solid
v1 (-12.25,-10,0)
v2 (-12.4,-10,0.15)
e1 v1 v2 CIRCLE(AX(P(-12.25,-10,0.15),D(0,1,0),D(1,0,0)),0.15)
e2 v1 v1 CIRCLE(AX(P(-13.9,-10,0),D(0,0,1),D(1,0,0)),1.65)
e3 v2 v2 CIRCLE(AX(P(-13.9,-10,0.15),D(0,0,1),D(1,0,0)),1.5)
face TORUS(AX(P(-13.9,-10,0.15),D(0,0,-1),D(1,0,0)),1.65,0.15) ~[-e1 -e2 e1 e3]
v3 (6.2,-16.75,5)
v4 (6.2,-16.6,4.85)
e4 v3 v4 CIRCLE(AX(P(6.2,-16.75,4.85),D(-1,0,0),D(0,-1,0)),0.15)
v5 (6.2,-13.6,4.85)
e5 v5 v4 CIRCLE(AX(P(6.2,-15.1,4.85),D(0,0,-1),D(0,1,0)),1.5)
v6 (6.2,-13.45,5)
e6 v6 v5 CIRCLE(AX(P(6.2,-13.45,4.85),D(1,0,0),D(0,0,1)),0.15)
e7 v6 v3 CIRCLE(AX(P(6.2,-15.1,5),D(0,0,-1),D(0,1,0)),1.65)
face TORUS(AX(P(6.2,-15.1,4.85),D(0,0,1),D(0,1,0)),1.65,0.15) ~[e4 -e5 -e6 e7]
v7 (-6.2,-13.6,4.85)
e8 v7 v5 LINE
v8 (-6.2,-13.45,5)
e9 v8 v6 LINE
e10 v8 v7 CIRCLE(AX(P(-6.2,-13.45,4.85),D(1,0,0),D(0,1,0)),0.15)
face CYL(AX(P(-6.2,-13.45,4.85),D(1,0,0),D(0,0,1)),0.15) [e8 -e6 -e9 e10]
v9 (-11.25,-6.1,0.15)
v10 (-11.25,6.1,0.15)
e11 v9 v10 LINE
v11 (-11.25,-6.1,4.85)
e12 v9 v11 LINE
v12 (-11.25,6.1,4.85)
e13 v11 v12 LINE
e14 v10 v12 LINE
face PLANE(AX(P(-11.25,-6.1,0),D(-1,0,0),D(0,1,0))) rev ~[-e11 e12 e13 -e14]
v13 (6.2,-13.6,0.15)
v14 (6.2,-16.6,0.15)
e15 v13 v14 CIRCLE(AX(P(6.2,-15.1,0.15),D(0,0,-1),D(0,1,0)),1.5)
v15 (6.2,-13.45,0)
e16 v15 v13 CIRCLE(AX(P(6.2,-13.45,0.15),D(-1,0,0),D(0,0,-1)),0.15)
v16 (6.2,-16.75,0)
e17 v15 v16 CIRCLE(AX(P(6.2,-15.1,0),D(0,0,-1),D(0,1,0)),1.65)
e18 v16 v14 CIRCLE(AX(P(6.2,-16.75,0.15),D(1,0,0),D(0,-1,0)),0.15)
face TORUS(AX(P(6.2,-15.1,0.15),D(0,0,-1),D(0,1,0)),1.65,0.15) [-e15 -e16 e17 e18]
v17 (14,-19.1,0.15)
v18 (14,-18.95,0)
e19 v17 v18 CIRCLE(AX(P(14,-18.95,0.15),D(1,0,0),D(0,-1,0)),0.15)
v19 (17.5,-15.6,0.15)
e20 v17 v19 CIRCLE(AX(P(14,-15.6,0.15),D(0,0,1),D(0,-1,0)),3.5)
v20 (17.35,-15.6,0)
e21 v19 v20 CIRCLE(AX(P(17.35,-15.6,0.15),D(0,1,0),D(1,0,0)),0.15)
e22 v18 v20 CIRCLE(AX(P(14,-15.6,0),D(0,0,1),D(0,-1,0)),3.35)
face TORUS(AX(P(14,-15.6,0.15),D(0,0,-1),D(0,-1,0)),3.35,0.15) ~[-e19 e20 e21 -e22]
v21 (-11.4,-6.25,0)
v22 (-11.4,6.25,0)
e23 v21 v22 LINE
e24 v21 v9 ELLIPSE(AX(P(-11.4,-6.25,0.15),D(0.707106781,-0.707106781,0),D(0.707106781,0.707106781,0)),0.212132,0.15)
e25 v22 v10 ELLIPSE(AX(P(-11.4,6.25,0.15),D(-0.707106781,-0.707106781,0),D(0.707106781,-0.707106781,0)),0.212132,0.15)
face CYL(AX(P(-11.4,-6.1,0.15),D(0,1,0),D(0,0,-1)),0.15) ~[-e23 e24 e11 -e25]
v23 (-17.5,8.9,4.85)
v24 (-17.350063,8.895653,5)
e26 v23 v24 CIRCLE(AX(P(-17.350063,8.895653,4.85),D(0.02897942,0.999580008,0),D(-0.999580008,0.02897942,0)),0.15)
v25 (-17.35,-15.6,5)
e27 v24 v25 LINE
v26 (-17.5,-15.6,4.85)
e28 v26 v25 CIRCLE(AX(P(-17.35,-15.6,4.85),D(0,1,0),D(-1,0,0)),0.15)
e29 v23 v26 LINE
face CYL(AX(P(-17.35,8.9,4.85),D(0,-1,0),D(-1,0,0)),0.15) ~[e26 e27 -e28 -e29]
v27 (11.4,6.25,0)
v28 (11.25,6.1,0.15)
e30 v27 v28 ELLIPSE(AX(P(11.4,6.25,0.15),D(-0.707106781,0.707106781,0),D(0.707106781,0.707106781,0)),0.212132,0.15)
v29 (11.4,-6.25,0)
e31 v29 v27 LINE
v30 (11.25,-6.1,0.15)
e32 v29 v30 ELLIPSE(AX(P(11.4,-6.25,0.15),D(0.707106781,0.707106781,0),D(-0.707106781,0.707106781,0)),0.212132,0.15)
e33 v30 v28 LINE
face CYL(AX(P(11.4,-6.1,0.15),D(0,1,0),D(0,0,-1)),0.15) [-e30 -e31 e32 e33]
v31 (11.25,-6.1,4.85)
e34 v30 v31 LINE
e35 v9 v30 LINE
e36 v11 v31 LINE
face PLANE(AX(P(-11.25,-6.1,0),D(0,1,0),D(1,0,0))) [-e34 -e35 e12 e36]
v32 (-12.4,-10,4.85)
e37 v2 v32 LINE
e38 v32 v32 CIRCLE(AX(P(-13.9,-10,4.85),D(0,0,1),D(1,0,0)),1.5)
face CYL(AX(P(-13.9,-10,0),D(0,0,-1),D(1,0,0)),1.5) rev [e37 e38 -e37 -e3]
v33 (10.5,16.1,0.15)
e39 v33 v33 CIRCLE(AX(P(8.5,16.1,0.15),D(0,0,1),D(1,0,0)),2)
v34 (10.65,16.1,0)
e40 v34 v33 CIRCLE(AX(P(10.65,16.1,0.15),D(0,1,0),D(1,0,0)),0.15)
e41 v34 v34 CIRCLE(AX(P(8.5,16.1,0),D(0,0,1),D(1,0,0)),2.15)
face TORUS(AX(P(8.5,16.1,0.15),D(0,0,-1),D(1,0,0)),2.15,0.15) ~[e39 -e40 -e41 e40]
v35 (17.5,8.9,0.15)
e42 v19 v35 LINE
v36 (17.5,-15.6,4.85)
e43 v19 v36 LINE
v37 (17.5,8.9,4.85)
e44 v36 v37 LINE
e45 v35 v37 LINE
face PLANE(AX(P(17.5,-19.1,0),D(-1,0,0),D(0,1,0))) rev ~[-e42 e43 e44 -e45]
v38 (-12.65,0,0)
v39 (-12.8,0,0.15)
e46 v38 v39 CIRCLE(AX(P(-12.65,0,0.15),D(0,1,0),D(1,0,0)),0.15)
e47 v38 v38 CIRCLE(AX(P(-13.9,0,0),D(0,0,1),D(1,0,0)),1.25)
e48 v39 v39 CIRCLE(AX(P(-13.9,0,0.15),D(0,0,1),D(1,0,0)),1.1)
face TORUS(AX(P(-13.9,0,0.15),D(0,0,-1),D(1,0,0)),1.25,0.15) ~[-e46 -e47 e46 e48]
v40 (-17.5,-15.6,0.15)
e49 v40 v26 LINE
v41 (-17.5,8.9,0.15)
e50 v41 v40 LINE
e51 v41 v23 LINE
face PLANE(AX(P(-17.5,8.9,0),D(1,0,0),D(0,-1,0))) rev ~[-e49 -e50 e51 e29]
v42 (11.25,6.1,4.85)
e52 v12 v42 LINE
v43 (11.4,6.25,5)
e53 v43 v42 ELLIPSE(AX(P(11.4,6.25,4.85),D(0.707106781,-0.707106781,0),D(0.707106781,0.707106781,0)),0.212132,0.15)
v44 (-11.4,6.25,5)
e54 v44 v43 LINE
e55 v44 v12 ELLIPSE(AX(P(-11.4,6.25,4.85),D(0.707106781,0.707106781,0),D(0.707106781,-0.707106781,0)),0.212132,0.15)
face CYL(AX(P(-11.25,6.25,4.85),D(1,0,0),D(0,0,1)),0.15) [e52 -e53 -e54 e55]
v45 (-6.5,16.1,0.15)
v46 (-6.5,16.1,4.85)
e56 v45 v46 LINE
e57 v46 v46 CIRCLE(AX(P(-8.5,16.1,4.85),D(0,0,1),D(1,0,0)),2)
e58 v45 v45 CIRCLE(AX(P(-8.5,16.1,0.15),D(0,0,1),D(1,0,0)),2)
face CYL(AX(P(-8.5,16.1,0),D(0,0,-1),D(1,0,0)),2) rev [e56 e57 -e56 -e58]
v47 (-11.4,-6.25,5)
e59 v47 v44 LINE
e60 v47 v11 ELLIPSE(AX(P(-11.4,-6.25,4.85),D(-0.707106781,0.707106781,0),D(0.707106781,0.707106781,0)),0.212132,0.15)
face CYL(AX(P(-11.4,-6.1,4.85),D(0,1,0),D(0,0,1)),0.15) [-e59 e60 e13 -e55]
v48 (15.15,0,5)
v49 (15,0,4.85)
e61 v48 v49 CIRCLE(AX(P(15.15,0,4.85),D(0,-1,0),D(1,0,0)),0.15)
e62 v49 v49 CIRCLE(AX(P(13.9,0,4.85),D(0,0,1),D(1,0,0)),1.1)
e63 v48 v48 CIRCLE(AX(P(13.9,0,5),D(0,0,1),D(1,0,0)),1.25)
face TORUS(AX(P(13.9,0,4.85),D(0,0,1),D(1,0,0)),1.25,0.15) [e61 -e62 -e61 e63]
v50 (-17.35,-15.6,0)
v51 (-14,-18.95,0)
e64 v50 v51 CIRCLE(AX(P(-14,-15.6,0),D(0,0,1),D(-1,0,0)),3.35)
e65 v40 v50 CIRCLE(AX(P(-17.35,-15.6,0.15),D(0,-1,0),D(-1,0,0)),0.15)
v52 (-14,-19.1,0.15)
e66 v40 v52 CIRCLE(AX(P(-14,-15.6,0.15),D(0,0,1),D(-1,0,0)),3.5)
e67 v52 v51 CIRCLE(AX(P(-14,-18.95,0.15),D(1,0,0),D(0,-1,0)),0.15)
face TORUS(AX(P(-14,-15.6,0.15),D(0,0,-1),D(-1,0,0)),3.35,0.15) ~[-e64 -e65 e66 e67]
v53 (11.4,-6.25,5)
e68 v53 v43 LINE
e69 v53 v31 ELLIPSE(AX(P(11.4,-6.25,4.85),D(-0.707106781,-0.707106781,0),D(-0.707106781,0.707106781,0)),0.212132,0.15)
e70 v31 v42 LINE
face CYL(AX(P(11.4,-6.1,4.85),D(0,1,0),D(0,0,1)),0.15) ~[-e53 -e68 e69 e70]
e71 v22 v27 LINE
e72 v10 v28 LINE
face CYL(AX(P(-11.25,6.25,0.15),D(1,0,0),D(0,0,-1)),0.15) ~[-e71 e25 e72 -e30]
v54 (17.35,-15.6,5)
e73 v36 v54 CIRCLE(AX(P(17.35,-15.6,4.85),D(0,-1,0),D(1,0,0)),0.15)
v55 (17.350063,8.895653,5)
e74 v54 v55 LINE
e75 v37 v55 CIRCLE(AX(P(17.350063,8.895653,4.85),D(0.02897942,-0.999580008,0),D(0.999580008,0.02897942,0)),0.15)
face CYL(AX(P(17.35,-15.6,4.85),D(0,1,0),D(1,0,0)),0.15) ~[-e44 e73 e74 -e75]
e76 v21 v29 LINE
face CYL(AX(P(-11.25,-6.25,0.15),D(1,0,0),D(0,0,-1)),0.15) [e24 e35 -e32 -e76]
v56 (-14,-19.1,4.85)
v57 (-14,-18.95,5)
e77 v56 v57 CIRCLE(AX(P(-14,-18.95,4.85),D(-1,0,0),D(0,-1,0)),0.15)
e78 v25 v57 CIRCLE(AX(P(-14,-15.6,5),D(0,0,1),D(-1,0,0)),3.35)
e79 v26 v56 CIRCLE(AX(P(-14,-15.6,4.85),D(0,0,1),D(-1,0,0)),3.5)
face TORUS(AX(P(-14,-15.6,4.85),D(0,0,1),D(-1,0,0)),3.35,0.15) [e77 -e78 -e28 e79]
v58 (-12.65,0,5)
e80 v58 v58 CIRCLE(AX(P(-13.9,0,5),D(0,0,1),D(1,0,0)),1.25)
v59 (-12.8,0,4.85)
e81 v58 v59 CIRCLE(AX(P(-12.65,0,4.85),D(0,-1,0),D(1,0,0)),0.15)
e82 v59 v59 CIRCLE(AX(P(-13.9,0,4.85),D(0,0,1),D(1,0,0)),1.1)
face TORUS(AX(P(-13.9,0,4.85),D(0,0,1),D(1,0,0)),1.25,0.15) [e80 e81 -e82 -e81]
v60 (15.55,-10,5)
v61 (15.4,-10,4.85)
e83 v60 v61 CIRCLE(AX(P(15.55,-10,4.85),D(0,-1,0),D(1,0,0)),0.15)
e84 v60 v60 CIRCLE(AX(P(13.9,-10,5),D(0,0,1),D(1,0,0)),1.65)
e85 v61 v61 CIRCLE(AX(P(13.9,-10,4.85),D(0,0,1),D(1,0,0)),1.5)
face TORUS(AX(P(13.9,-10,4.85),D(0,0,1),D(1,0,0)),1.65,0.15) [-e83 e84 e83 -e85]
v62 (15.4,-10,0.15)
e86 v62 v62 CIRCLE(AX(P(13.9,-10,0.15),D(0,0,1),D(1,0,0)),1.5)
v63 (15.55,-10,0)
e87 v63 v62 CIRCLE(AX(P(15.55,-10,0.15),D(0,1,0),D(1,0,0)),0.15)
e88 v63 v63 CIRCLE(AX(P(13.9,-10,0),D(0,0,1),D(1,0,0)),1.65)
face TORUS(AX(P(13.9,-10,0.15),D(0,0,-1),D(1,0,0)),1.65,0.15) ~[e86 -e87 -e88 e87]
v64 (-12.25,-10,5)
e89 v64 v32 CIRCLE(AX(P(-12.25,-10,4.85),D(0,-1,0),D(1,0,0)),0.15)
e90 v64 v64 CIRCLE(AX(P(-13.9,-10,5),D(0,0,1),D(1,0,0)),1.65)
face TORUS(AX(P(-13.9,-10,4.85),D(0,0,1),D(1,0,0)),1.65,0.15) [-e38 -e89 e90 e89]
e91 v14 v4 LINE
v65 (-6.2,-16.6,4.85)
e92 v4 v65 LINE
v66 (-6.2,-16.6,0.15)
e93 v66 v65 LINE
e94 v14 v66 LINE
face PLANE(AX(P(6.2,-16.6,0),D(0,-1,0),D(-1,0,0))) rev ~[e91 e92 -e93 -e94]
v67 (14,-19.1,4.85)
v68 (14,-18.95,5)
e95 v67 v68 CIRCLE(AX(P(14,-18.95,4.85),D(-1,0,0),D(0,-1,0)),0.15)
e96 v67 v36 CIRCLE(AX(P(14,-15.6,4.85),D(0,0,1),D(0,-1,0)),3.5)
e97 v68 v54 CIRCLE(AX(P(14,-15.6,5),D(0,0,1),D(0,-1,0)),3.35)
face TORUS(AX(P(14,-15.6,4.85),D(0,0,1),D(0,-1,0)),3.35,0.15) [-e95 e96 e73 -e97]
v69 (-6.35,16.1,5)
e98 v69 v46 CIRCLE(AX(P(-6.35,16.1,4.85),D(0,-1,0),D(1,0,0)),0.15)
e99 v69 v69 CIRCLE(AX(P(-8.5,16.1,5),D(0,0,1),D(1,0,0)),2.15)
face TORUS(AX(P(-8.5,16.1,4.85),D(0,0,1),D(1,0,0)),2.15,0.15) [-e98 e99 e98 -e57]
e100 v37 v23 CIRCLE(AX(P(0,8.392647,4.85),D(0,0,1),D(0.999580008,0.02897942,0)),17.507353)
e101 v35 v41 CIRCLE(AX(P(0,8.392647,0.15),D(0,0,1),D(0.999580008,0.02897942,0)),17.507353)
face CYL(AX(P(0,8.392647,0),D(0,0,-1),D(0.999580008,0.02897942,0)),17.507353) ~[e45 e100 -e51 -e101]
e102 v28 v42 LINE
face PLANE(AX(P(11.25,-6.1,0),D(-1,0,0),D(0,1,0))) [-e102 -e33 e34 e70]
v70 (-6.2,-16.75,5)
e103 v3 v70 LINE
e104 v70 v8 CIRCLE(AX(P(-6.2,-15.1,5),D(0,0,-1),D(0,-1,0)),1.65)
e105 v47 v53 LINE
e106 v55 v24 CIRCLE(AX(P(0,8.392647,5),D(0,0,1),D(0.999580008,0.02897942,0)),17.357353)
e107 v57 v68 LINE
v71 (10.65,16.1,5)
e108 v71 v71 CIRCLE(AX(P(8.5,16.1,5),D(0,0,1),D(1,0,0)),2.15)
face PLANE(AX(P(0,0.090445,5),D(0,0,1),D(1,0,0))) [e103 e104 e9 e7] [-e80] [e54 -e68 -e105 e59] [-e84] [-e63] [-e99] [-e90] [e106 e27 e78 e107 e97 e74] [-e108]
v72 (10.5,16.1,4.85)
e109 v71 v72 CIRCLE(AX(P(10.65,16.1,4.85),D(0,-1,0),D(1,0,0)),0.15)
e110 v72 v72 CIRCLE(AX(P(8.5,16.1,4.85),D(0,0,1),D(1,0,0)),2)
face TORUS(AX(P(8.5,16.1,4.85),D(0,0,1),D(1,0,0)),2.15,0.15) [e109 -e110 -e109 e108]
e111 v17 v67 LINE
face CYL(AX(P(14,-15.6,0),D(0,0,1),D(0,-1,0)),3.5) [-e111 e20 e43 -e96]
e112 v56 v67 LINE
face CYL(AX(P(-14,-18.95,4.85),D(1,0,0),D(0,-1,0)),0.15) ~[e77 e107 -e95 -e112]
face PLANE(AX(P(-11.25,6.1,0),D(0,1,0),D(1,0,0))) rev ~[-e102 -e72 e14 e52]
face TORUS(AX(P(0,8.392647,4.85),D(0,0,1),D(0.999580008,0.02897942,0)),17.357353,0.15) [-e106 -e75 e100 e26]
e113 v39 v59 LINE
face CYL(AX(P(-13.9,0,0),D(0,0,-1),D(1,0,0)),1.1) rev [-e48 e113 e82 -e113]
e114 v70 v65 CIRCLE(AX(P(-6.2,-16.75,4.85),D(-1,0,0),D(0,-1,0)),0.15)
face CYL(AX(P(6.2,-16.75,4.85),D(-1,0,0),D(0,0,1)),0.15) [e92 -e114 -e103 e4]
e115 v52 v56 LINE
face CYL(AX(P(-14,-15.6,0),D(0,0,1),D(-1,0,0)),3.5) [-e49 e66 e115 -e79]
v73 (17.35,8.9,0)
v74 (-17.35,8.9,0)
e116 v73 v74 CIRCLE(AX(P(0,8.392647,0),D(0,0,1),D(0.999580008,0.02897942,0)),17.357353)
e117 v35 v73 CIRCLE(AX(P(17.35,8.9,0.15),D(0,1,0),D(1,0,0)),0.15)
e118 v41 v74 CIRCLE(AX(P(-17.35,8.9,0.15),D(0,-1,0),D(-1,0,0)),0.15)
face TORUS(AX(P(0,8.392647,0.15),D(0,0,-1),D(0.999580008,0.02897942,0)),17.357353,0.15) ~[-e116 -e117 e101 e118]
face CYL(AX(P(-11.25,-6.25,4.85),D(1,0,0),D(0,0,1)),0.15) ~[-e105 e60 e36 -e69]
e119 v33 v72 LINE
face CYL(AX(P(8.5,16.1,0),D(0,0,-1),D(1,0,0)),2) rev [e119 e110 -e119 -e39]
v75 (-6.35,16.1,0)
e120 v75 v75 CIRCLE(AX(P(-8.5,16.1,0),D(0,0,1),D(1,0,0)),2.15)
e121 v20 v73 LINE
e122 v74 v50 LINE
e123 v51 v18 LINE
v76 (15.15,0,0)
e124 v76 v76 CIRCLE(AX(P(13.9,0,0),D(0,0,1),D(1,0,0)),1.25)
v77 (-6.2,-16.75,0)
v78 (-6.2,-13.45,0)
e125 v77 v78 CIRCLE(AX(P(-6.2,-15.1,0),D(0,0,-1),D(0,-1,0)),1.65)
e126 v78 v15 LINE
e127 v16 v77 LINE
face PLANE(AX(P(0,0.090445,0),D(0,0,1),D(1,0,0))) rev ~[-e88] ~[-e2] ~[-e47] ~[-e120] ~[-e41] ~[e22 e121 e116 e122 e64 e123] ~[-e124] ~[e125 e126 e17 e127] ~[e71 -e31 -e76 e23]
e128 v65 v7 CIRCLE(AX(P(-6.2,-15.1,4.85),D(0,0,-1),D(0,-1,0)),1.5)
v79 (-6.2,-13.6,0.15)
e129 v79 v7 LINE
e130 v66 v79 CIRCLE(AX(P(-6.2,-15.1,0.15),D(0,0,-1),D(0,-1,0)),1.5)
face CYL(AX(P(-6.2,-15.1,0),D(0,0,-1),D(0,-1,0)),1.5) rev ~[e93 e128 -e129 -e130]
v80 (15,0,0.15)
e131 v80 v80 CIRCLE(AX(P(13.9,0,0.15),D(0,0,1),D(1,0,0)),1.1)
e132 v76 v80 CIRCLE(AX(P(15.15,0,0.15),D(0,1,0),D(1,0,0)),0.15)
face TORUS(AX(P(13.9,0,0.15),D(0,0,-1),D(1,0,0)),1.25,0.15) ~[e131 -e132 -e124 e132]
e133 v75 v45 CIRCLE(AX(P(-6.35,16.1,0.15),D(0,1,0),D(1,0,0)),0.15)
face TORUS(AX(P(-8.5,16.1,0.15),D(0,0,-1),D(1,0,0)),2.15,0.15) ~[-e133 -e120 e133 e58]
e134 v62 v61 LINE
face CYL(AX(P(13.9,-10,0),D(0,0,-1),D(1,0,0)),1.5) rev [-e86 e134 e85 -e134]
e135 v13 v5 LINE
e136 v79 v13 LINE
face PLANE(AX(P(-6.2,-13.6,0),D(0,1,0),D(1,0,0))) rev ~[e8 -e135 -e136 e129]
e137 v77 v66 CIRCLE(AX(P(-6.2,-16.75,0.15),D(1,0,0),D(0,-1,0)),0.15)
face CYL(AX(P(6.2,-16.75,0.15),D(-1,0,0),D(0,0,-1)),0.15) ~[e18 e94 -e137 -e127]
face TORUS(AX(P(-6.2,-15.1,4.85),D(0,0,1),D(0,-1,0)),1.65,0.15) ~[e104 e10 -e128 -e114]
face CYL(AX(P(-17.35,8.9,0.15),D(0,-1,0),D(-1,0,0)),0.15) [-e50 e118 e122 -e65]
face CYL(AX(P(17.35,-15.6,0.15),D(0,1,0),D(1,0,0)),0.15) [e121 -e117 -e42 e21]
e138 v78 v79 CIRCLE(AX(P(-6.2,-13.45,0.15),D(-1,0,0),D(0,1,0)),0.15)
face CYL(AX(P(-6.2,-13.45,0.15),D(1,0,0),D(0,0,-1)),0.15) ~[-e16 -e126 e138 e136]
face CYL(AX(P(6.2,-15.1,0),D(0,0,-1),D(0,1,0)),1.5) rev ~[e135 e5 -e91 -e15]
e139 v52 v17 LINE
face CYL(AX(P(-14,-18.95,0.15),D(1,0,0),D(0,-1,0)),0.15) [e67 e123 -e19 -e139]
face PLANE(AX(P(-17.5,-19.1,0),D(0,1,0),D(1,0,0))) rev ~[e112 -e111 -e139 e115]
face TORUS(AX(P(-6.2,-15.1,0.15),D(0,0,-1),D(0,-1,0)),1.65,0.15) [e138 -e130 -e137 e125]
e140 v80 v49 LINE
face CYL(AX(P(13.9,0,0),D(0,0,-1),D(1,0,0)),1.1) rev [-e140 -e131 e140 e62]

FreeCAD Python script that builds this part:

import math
import FreeCAD as App
import Part
import Sketcher
Q = App.Units.Quantity


def edges_at(feature, points):
    """Names of the edges that pass closest to the given points."""
    edges = feature.Shape.Edges
    near = lambda p: min(range(len(edges)), key=lambda i: edges[i].distToShape(Part.Vertex(*p))[0])
    return sorted({f"Edge{near(p) + 1}" for p in points})


def add_polygon(sketch, points):
    """Adds a closed chain of lines whose ends are joined by coincident constraints."""
    first, n = sketch.GeometryCount, len(points)
    for a, b in zip(points, points[1:] + points[:1]):
        sketch.addGeometry(Part.LineSegment(App.Vector(*a, 0), App.Vector(*b, 0)), False)
    for i in range(n):
        sketch.addConstraint(Sketcher.Constraint("Coincident", first + i, 2, first + (i + 1) % n, 1))

doc = App.newDocument("Part")
body = doc.addObject("PartDesign::Body", "Body")

# Sketch on XY plane
sketch1 = doc.addObject("Sketcher::SketchObject", "Sketch")
body.addObject(sketch1)
sketch1.AttachmentSupport = (doc.XY_Plane, [""])
sketch1.MapMode = "FlatFace"
sketch1.addGeometry(Part.LineSegment(App.Vector(-17.5, 8.9, 0), App.Vector(-17.5, -19.1, 0)), False)  # 0
sketch1.addGeometry(Part.LineSegment(App.Vector(-17.5, -19.1, 0), App.Vector(17.5, -19.1, 0)), False)  # 1
sketch1.addGeometry(Part.LineSegment(App.Vector(17.5, -19.1, 0), App.Vector(17.5, 8.9, 0)), False)  # 2
sketch1.addGeometry(Part.ArcOfCircle(Part.Circle(App.Vector(0, 8.4, 0), App.Vector(0, 0, 1), 17.5), math.radians(2), math.radians(178)), False)  # 3
sketch1.addGeometry(Part.Circle(App.Vector(-13.9, -10, 0), App.Vector(0, 0, 1), 1.5), False)  # 4
sketch1.addGeometry(Part.ArcOfCircle(Part.Circle(App.Vector(-6.2, -15.1, 0), App.Vector(0, 0, 1), 1.5), math.radians(90), math.radians(270)), False)  # 5
sketch1.addGeometry(Part.LineSegment(App.Vector(-6.2, -13.6, 0), App.Vector(6.2, -13.6, 0)), False)  # 6
sketch1.addGeometry(Part.ArcOfCircle(Part.Circle(App.Vector(6.2, -15.1, 0), App.Vector(0, 0, 1), 1.5), math.radians(-90), math.radians(90)), False)  # 7
sketch1.addGeometry(Part.LineSegment(App.Vector(6.2, -16.6, 0), App.Vector(-6.2, -16.6, 0)), False)  # 8
sketch1.addGeometry(Part.Circle(App.Vector(-13.9, 0, 0), App.Vector(0, 0, 1), 1.1), False)  # 9
add_polygon(sketch1, [(11.2, -6.1), (-11.2, -6.1), (-11.2, 6.1), (11.2, 6.1)])  # lines 10-13
sketch1.addGeometry(Part.Circle(App.Vector(13.9, -10, 0), App.Vector(0, 0, 1), 1.5), False)  # 14
sketch1.addGeometry(Part.Circle(App.Vector(13.9, 0, 0), App.Vector(0, 0, 1), 1.1), False)  # 15
sketch1.addGeometry(Part.Circle(App.Vector(-8.5, 16.1, 0), App.Vector(0, 0, 1), 2), False)  # 16
sketch1.addGeometry(Part.Circle(App.Vector(8.5, 16.1, 0), App.Vector(0, 0, 1), 2), False)  # 17
sketch1.addConstraint([
    Sketcher.Constraint("Coincident", 0, 2, 1, 1),
    Sketcher.Constraint("Coincident", 1, 2, 2, 1),
    Sketcher.Constraint("Coincident", 2, 2, 3, 1),
    Sketcher.Constraint("Coincident", 3, 2, 0, 1),
    Sketcher.Constraint("Tangent", 5, 1, 6, 1),
    Sketcher.Constraint("Tangent", 6, 2, 7, 2),
    Sketcher.Constraint("Tangent", 7, 1, 8, 1),
    Sketcher.Constraint("Tangent", 8, 2, 5, 2),
    Sketcher.Constraint("Vertical", 0),
    Sketcher.Constraint("Horizontal", 1),
    Sketcher.Constraint("Vertical", 2),
    Sketcher.Constraint("Horizontal", 6),
    Sketcher.Constraint("Horizontal", 8),
    Sketcher.Constraint("Horizontal", 10),
    Sketcher.Constraint("Vertical", 11),
    Sketcher.Constraint("Horizontal", 12),
    Sketcher.Constraint("Vertical", 13),
    Sketcher.Constraint("Equal", 4, 5),
    Sketcher.Constraint("Equal", 7, 14),
    Sketcher.Constraint("Equal", 9, 15),
    Sketcher.Constraint("Equal", 16, 17),
    Sketcher.Constraint("Symmetric", 9, 3, 15, 3, -1, 1),
    Sketcher.Constraint("Symmetric", 10, 2, 12, 2, -1, 1),
    Sketcher.Constraint("Symmetric", 4, 3, 14, 3, -2),
    Sketcher.Constraint("Symmetric", 16, 3, 17, 3, -2),
    Sketcher.Constraint("Symmetric", 2, 2, 3, 2, -2),
    Sketcher.Constraint("PointOnObject", 9, 3, -1),
    Sketcher.Constraint("Vertical", 4, 3, 9, 3),
    Sketcher.Constraint("Diameter", 4, Q("3 mm")),
    Sketcher.Constraint("Diameter", 16, Q("4 mm")),
    Sketcher.Constraint("Diameter", 9, Q("2.2 mm")),
    Sketcher.Constraint("DistanceX", 1, 1, 1, 2, Q("35 mm")),
    Sketcher.Constraint("DistanceY", 0, 2, 0, 1, Q("28 mm")),
    Sketcher.Constraint("DistanceX", 6, 1, 6, 2, Q("12.4 mm")),
    Sketcher.Constraint("DistanceX", 10, 2, 10, 1, Q("22.5 mm")),
    Sketcher.Constraint("DistanceY", 11, 1, 11, 2, Q("12.2 mm")),
    Sketcher.Constraint("DistanceY", 4, 3, -1, 1, Q("10 mm")),
    Sketcher.Constraint("DistanceX", 16, 3, 17, 3, Q("17 mm")),
    Sketcher.Constraint("DistanceY", 0, 2, 5, 3, Q("4 mm")),
    Sketcher.Constraint("DistanceY", 5, 3, 10, 2, Q("9 mm")),
    Sketcher.Constraint("DistanceY", 11, 2, 16, 3, Q("10 mm")),
    Sketcher.Constraint("DistanceX", 4, 3, -1, 1, Q("13.9 mm")),
    Sketcher.Constraint("DistanceX", 5, 3, -1, 1, Q("6.2 mm")),
    Sketcher.Constraint("Radius", 3, Q("17.507353 mm")),
])
pad1 = doc.addObject("PartDesign::Pad", "Pad")
body.addObject(pad1)
pad1.Profile = sketch1
pad1.Length = 5
doc.recompute()

fillet = doc.addObject("PartDesign::Fillet", "Fillet")
body.addObject(fillet)
fillet.Base = (pad1, edges_at(pad1, [(17.5, -19.1, 2.5), (-17.5, -19.1, 2.5)]))
fillet.Radius = 3.5
doc.recompute()

fillet2 = doc.addObject("PartDesign::Fillet", "Fillet001")
body.addObject(fillet2)
fillet2.Base = (fillet, edges_at(fillet, [
    (11.25, 0, 0),
    (0, 6.1, 0),
    (-11.25, 0, 0),
    (0, -6.1, 0),
    (11.25, 0, 5),
    (0, 6.1, 5),
    (-11.25, 0, 5),
    (0, -6.1, 5),
    (-15, 0, 0),
    (-15, 0, 5),
    (-15.4, -10, 0),
    (-15.4, -10, 5),
    (-7.7, -15.1, 0),
    (0, -16.6, 0),
    (7.7, -15.1, 0),
    (0, -13.6, 0),
    (-7.7, -15.1, 5),
    (0, -16.6, 5),
    (7.7, -15.1, 5),
    (0, -13.6, 5),
    (0, 25.9, 5),
    (-10.5, 16.1, 0),
    (-10.5, 16.1, 5),
    (12.4, -10, 0),
    (12.4, -10, 5),
    (-17.5, -3.35, 0),
    (12.8, 0, 0),
    (12.8, 0, 5),
    (0, 25.9, 0),
    (6.5, 16.1, 0),
    (6.5, 16.1, 5),
    (0, -19.1, 0),
    (0, -19.1, 5),
    (17.5, -3.35, 0),
    (16.475, -18.075, 0),
    (-16.475, -18.075, 0),
    (-17.5, -3.35, 5),
    (17.5, -3.35, 5),
    (16.475, -18.075, 5),
    (-16.475, -18.075, 5),
]))
fillet2.Radius = 0.15

doc.recompute()
